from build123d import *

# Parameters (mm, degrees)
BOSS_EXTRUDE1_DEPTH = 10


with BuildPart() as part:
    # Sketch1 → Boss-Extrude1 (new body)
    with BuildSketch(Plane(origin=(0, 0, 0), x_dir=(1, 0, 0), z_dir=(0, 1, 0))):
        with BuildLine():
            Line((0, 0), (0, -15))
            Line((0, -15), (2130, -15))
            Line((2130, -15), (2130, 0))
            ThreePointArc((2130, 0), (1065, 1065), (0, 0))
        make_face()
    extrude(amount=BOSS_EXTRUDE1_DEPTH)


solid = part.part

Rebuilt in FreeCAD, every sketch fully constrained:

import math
import FreeCAD as App
import Part
import Sketcher
from FreeCAD import Vector
Q = App.Units.Quantity

doc = App.newDocument("Part")
params = doc.addObject("Spreadsheet::Sheet", "Params")
for row, (alias, value) in enumerate([
    ("sketch1_radius", "1065 mm"),
    ("sketch1_height", "15 mm"),
    ("pad1_length", "10 mm"),
], start=1):
    params.set(f"A{row}", alias)
    params.set(f"B{row}", "=" + value)
    params.setAlias(f"B{row}", alias)

body = doc.addObject("PartDesign::Body", "Body")

# Sketch on XZ plane
sketch1 = doc.addObject("Sketcher::SketchObject", "Sketch")
body.addObject(sketch1)
sketch1.AttachmentSupport = (doc.XZ_Plane, [""])
sketch1.MapMode = "FlatFace"
sketch1.addGeometry(Part.LineSegment(Vector(0, 0, 0), Vector(0, 15, 0)), False)
sketch1.addGeometry(Part.LineSegment(Vector(0, 15, 0), Vector(2130, 15, 0)), False)
sketch1.addGeometry(Part.LineSegment(Vector(2130, 15, 0), Vector(2130, 0, 0)), False)
sketch1.addGeometry(Part.ArcOfCircle(Part.Circle(Vector(1065, 0, 0), Vector(0, 0, 1), 1065), math.radians(180), math.radians(360)), False)
sketch1.addConstraint(Sketcher.Constraint("Coincident", 0, 2, 1, 1))
sketch1.addConstraint(Sketcher.Constraint("Coincident", 1, 2, 2, 1))
sketch1.addConstraint(Sketcher.Constraint("Tangent", 2, 2, 3, 2))
sketch1.addConstraint(Sketcher.Constraint("Tangent", 3, 1, 0, 1))
sketch1.addConstraint(Sketcher.Constraint("Vertical", 0))
sketch1.addConstraint(Sketcher.Constraint("Horizontal", 1))
sketch1.addConstraint(Sketcher.Constraint("Vertical", 2))
sketch1.addConstraint(Sketcher.Constraint("PointOnObject", 3, 3, -1))
sketch1.addConstraint(Sketcher.Constraint("PointOnObject", 0, 2, -2))
sketch1.addConstraint(Sketcher.Constraint("Radius", 3, Q("1065 mm")))
sketch1.addConstraint(Sketcher.Constraint("DistanceY", 0, 1, 0, 2, Q("15 mm")))
sketch1.setExpression("Constraints[9]", "Params.sketch1_radius")
sketch1.setExpression("Constraints[10]", "Params.sketch1_height")
pad1 = doc.addObject("PartDesign::Pad", "Pad")
body.addObject(pad1)
pad1.Profile = sketch1
pad1.setExpression("Length", "Params.pad1_length")
pad1.Reversed = True

doc.recompute()
